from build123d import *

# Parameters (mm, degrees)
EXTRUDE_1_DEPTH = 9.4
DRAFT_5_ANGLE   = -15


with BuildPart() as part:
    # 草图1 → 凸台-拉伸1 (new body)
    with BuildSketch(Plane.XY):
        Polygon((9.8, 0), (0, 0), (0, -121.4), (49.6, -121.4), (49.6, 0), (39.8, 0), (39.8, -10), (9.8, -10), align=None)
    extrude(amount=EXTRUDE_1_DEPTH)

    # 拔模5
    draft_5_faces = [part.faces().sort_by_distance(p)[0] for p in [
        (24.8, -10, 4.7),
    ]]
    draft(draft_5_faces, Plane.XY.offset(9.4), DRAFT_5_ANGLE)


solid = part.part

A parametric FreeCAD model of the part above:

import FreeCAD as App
import Part
import Sketcher

V = App.Vector
Q = App.Units.Quantity


def faces_at(feature, points):
    """Names of the faces that lie closest to the given points."""
    faces = feature.Shape.Faces
    near = lambda p: min(range(len(faces)), key=lambda i: faces[i].distToShape(Part.Vertex(*p))[0])
    return sorted({f"Face{near(p) + 1}" for p in points})


def add_polygon(sketch, points):
    """Adds a closed chain of lines whose ends are joined by coincident constraints."""
    first, n = sketch.GeometryCount, len(points)
    for a, b in zip(points, points[1:] + points[:1]):
        sketch.addGeometry(Part.LineSegment(App.Vector(*a, 0), App.Vector(*b, 0)), False)
    for i in range(n):
        sketch.addConstraint(Sketcher.Constraint("Coincident", first + i, 2, first + (i + 1) % n, 1))

doc = App.newDocument("Part")
body = doc.addObject("PartDesign::Body", "Body")

sketch1 = body.newObject("Sketcher::SketchObject", "Sketch")
sketch1.AttachmentSupport = (doc.getObject("XY_Plane"), [""])
sketch1.MapMode = "FlatFace"
add_polygon(sketch1, [(9.8, 0), (0, 0), (0, -121.4), (49.6, -121.4), (49.6, 0), (39.8, 0), (39.8, -10), (9.8, -10)])
sketch1.addConstraint([
    Sketcher.Constraint("Horizontal", 0),
    Sketcher.Constraint("Vertical", 1),
    Sketcher.Constraint("Horizontal", 2),
    Sketcher.Constraint("Vertical", 3),
    Sketcher.Constraint("Horizontal", 4),
    Sketcher.Constraint("Vertical", 5),
    Sketcher.Constraint("Horizontal", 6),
    Sketcher.Constraint("Vertical", 7),
    Sketcher.Constraint("Coincident", 0, 2, -1, 1),
    Sketcher.Constraint("PointOnObject", 3, 2, -1),
    Sketcher.Constraint("Equal", 0, 4),
    Sketcher.Constraint("DistanceX", 6, 2, 6, 1, Q("30 mm")),
    Sketcher.Constraint("DistanceY", 5, 2, 5, 1, Q("10 mm")),
    Sketcher.Constraint("DistanceX", 0, 2, 0, 1, Q("9.8 mm")),
    Sketcher.Constraint("DistanceY", 1, 2, 1, 1, Q("121.4 mm")),
])
pad1 = body.newObject("PartDesign::Pad", "Pad")
pad1.Profile = sketch1
pad1.Length = 9.4
doc.recompute()

datumplane = body.newObject("PartDesign::Plane", "DatumPlane")
datumplane.AttachmentSupport = (doc.getObject("XY_Plane"), [""])
datumplane.MapMode = "FlatFace"
datumplane.AttachmentOffset = App.Placement(V(0, 0, 9.4), App.Rotation())
draft = body.newObject("PartDesign::Draft", "Draft")
draft.Base = (pad1, faces_at(pad1, [(24.8, -10, 4.7)]))
draft.NeutralPlane = (datumplane, [""])
draft.Angle = 15
draft.Reversed = True

doc.recompute()
